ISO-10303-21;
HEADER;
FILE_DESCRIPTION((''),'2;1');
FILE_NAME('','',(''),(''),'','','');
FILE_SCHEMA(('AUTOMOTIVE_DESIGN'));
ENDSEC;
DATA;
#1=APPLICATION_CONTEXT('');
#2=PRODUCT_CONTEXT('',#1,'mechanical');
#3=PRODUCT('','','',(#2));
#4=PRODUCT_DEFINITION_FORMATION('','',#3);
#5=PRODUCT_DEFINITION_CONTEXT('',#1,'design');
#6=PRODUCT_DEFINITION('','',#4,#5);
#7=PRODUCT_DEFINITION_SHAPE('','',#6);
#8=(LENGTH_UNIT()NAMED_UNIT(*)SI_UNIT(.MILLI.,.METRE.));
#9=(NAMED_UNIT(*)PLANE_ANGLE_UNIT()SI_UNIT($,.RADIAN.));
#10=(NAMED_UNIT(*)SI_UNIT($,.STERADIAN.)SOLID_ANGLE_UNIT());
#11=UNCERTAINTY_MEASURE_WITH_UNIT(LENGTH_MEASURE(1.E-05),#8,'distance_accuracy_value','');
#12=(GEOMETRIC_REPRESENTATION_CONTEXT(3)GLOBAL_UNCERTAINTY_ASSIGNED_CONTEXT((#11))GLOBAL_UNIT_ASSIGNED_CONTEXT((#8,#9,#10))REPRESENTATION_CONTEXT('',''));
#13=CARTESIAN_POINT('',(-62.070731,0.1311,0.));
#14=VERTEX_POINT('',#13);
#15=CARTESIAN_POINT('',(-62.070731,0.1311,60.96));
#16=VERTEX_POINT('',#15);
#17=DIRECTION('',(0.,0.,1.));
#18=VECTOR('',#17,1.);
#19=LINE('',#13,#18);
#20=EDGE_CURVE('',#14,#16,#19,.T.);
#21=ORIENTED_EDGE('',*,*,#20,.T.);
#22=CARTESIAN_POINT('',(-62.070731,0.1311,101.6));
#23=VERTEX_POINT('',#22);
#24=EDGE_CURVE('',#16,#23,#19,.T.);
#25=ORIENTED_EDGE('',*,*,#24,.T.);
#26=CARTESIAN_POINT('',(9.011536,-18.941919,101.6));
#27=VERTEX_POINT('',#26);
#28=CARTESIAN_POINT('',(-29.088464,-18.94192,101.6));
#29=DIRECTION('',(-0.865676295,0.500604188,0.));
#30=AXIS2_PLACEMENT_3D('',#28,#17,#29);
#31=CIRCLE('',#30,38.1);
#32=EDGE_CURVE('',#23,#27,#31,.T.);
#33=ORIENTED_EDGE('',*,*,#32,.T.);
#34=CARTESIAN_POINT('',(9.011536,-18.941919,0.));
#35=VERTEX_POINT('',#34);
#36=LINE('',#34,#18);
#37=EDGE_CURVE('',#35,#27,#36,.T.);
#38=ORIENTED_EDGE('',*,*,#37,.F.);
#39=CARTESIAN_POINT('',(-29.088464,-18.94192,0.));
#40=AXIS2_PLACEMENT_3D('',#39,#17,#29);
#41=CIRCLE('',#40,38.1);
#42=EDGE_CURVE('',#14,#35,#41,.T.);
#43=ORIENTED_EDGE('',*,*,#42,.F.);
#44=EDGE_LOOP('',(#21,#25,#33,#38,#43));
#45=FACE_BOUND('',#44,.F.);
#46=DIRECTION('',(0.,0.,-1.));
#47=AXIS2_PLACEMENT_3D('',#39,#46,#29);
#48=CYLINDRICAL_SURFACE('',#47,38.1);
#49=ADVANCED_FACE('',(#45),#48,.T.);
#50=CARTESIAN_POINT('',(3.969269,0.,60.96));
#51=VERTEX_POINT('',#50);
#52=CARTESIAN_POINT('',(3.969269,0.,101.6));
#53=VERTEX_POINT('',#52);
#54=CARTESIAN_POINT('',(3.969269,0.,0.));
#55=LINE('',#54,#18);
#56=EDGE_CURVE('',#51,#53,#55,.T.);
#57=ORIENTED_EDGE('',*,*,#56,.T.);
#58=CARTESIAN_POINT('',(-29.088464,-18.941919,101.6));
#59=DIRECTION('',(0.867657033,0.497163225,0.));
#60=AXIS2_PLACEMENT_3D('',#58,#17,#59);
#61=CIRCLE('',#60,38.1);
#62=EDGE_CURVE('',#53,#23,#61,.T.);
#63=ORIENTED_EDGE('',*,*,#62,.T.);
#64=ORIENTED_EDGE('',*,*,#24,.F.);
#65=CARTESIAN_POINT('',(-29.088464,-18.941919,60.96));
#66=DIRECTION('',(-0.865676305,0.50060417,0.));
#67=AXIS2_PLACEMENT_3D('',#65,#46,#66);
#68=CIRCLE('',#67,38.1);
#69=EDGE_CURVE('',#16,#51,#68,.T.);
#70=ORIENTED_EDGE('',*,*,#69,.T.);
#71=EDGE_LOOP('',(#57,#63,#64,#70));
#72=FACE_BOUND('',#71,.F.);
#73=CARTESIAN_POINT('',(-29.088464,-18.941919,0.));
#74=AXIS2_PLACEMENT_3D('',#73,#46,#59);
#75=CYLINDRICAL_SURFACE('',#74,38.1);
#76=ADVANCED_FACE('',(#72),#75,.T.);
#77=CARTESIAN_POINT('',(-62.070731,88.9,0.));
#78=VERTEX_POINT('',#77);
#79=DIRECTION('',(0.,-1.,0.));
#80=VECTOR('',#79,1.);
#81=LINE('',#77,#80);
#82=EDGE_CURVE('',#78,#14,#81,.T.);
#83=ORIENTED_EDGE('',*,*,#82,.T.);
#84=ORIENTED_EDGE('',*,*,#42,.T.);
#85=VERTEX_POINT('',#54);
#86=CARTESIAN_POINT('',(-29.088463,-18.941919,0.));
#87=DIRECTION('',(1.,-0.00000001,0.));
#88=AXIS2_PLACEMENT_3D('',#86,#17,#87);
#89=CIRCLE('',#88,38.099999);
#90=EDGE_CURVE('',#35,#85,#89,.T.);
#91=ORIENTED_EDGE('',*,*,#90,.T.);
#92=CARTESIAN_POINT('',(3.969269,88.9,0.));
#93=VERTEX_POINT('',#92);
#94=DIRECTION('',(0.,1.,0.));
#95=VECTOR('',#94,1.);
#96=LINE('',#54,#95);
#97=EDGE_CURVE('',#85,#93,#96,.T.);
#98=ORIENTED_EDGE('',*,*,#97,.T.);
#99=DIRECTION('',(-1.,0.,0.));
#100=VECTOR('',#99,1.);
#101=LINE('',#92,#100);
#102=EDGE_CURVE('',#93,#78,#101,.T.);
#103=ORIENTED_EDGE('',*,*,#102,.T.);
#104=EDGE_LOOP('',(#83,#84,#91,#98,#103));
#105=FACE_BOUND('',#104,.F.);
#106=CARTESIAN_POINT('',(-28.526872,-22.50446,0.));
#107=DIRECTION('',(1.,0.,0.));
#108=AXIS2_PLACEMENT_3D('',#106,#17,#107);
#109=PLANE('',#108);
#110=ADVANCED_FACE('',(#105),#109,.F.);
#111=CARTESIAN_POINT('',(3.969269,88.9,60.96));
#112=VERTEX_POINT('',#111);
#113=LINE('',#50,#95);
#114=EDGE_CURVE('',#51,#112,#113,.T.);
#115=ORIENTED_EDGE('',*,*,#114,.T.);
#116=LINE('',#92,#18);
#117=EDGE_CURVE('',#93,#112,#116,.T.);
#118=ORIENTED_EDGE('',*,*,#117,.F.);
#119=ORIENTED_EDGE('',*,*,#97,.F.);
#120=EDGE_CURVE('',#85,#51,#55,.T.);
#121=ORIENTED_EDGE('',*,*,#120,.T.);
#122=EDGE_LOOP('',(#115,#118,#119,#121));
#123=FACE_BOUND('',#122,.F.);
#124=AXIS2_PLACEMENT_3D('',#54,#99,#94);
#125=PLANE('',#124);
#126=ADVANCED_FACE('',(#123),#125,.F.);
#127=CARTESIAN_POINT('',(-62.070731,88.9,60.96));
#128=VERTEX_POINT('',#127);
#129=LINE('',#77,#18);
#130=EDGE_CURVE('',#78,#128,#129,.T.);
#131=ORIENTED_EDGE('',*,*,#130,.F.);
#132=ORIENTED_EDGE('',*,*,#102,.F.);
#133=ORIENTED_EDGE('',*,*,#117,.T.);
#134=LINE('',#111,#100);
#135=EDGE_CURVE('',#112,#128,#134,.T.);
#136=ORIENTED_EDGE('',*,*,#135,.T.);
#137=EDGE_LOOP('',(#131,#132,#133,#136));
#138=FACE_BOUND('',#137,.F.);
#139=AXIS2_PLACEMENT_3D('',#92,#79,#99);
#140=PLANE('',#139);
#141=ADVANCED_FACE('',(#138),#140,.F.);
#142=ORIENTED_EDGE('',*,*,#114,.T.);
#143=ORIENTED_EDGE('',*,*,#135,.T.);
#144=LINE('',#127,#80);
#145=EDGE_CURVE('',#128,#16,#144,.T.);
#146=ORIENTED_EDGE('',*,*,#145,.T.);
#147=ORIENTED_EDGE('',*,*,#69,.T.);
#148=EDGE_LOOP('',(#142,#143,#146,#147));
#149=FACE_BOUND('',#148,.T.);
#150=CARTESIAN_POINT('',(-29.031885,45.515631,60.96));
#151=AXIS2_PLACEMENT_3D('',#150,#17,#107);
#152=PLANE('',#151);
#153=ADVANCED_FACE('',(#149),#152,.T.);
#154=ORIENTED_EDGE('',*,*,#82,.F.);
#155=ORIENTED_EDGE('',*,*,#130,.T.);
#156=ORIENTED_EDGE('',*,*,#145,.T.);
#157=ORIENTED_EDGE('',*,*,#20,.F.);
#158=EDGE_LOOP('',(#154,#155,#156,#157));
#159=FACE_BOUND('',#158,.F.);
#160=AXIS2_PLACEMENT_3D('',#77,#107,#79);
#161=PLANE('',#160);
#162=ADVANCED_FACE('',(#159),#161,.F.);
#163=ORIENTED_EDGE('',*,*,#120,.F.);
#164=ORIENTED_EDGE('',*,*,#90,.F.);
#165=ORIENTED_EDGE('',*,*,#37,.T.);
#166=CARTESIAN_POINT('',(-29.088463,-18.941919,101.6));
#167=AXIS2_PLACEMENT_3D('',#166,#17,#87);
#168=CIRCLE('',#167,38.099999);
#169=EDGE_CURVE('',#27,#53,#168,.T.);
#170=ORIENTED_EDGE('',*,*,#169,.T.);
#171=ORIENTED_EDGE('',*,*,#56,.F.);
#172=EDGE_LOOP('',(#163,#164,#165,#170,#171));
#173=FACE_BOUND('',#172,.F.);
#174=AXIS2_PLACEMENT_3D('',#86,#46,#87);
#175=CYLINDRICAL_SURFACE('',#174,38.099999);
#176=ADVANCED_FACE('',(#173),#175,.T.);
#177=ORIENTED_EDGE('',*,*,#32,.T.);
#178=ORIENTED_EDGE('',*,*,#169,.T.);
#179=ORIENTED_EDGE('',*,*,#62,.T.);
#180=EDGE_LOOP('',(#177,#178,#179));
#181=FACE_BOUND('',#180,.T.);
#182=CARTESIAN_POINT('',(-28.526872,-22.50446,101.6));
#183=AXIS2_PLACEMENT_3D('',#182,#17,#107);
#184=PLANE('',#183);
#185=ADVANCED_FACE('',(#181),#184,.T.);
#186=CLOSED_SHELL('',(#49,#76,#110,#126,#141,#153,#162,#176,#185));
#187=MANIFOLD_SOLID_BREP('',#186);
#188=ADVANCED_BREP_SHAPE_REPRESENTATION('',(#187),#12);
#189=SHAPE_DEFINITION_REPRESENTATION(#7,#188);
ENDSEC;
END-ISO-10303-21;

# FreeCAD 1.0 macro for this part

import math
import FreeCAD as App
import Part
import Sketcher
from FreeCAD import Vector
Q = App.Units.Quantity

doc = App.newDocument("Part")
body = doc.addObject("PartDesign::Body", "Body")

# Sketch on XY plane
sketch1 = body.newObject("Sketcher::SketchObject", "Sketch")
sketch1.AttachmentSupport = (doc.getObject("XY_Plane"), [""])
sketch1.MapMode = "FlatFace"
sketch1.addGeometry([
    Part.ArcOfCircle(Part.Circle(Vector(-29, -19, 0), Vector(0, 0, 1), 38), math.radians(30), math.radians(150)),
    Part.LineSegment(Vector(4, 0, 0), Vector(4, 89, 0)),
    Part.LineSegment(Vector(4, 89, 0), Vector(-62, 89, 0)),
    Part.LineSegment(Vector(-62, 89, 0), Vector(-62, 0, 0)),
], False)
sketch1.addConstraint([
    Sketcher.Constraint("Coincident", 0, 1, 1, 1),
    Sketcher.Constraint("Coincident", 1, 2, 2, 1),
    Sketcher.Constraint("Coincident", 2, 2, 3, 1),
    Sketcher.Constraint("Coincident", 3, 2, 0, 2),
    Sketcher.Constraint("Vertical", 1),
    Sketcher.Constraint("Horizontal", 2),
    Sketcher.Constraint("Vertical", 3),
    Sketcher.Constraint("PointOnObject", 0, 1, -1),
    Sketcher.Constraint("Radius", 0, Q("1.5 in")),
    Sketcher.Constraint("DistanceX", 2, 2, 2, 1, Q("2.6 in")),
    Sketcher.Constraint("DistanceY", 1, 1, 1, 2, Q("3.5 in")),
    Sketcher.Constraint("DistanceY", 3, 2, 3, 1, Q("88.7689 mm")),
    Sketcher.Constraint("DistanceX", -1, 1, 0, 1, Q("3.969269 mm")),
])
pad1 = body.newObject("PartDesign::Pad", "Pad")
pad1.Profile = sketch1
pad1.Length = Q("2.4 in")

# Sketch on XY plane
sketch2 = body.newObject("Sketcher::SketchObject", "Sketch001")
sketch2.AttachmentSupport = (doc.getObject("XY_Plane"), [""])
sketch2.MapMode = "FlatFace"
sketch2.addGeometry([
    Part.ArcOfCircle(Part.Circle(Vector(-29, -19, 0), Vector(0, 0, 1), 38), math.radians(150), math.radians(360)),
    Part.ArcOfCircle(Part.Circle(Vector(-29, -19, 0), Vector(0, 0, 1), 38), math.radians(0), math.radians(30)),
    Part.ArcOfCircle(Part.Circle(Vector(-29, -19, 0), Vector(0, 0, 1), 38), math.radians(30), math.radians(150)),
], False)
sketch2.addConstraint([
    Sketcher.Constraint("Tangent", 0, 2, 1, 1),
    Sketcher.Constraint("Tangent", 1, 2, 2, 1),
    Sketcher.Constraint("Tangent", 2, 2, 0, 1),
    Sketcher.Constraint("PointOnObject", 1, 2, -1),
    Sketcher.Constraint("Horizontal", 2, 3, 0, 2),
    Sketcher.Constraint("Radius", 0, Q("1.5 in")),
    Sketcher.Constraint("DistanceX", 2, 2, 1, 2, Q("2.6 in")),
    Sketcher.Constraint("DistanceY", -1, 1, 2, 2, Q("0.1311 mm")),
    Sketcher.Constraint("DistanceX", -1, 1, 1, 2, Q("3.969269 mm")),
])
pad2 = body.newObject("PartDesign::Pad", "Pad001")
pad2.Profile = sketch2
pad2.Length = Q("4 in")

doc.recompute()
